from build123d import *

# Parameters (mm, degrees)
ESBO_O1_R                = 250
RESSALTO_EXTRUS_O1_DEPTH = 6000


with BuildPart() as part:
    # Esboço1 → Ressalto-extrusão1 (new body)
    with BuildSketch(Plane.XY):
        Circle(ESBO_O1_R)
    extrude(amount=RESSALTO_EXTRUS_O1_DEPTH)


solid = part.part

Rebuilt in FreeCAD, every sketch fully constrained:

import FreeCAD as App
import Part
import Sketcher

doc = App.newDocument("Part")
body = doc.addObject("PartDesign::Body", "Body")

# Sketch on XY plane
sketch1 = doc.addObject("Sketcher::SketchObject", "Sketch")
body.addObject(sketch1)
sketch1.AttachmentSupport = (doc.XY_Plane, [""])
sketch1.MapMode = "FlatFace"
sketch1.addGeometry(Part.Circle(App.Vector(0, 0, 0), App.Vector(0, 0, 1), 250), False)
sketch1.addConstraint([
    Sketcher.Constraint("Coincident", 0, 3, -1, 1),
    Sketcher.Constraint("Diameter", 0, 500.0),
])
pad1 = doc.addObject("PartDesign::Pad", "Pad")
body.addObject(pad1)
pad1.Profile = sketch1
pad1.Length = 6000

doc.recompute()
